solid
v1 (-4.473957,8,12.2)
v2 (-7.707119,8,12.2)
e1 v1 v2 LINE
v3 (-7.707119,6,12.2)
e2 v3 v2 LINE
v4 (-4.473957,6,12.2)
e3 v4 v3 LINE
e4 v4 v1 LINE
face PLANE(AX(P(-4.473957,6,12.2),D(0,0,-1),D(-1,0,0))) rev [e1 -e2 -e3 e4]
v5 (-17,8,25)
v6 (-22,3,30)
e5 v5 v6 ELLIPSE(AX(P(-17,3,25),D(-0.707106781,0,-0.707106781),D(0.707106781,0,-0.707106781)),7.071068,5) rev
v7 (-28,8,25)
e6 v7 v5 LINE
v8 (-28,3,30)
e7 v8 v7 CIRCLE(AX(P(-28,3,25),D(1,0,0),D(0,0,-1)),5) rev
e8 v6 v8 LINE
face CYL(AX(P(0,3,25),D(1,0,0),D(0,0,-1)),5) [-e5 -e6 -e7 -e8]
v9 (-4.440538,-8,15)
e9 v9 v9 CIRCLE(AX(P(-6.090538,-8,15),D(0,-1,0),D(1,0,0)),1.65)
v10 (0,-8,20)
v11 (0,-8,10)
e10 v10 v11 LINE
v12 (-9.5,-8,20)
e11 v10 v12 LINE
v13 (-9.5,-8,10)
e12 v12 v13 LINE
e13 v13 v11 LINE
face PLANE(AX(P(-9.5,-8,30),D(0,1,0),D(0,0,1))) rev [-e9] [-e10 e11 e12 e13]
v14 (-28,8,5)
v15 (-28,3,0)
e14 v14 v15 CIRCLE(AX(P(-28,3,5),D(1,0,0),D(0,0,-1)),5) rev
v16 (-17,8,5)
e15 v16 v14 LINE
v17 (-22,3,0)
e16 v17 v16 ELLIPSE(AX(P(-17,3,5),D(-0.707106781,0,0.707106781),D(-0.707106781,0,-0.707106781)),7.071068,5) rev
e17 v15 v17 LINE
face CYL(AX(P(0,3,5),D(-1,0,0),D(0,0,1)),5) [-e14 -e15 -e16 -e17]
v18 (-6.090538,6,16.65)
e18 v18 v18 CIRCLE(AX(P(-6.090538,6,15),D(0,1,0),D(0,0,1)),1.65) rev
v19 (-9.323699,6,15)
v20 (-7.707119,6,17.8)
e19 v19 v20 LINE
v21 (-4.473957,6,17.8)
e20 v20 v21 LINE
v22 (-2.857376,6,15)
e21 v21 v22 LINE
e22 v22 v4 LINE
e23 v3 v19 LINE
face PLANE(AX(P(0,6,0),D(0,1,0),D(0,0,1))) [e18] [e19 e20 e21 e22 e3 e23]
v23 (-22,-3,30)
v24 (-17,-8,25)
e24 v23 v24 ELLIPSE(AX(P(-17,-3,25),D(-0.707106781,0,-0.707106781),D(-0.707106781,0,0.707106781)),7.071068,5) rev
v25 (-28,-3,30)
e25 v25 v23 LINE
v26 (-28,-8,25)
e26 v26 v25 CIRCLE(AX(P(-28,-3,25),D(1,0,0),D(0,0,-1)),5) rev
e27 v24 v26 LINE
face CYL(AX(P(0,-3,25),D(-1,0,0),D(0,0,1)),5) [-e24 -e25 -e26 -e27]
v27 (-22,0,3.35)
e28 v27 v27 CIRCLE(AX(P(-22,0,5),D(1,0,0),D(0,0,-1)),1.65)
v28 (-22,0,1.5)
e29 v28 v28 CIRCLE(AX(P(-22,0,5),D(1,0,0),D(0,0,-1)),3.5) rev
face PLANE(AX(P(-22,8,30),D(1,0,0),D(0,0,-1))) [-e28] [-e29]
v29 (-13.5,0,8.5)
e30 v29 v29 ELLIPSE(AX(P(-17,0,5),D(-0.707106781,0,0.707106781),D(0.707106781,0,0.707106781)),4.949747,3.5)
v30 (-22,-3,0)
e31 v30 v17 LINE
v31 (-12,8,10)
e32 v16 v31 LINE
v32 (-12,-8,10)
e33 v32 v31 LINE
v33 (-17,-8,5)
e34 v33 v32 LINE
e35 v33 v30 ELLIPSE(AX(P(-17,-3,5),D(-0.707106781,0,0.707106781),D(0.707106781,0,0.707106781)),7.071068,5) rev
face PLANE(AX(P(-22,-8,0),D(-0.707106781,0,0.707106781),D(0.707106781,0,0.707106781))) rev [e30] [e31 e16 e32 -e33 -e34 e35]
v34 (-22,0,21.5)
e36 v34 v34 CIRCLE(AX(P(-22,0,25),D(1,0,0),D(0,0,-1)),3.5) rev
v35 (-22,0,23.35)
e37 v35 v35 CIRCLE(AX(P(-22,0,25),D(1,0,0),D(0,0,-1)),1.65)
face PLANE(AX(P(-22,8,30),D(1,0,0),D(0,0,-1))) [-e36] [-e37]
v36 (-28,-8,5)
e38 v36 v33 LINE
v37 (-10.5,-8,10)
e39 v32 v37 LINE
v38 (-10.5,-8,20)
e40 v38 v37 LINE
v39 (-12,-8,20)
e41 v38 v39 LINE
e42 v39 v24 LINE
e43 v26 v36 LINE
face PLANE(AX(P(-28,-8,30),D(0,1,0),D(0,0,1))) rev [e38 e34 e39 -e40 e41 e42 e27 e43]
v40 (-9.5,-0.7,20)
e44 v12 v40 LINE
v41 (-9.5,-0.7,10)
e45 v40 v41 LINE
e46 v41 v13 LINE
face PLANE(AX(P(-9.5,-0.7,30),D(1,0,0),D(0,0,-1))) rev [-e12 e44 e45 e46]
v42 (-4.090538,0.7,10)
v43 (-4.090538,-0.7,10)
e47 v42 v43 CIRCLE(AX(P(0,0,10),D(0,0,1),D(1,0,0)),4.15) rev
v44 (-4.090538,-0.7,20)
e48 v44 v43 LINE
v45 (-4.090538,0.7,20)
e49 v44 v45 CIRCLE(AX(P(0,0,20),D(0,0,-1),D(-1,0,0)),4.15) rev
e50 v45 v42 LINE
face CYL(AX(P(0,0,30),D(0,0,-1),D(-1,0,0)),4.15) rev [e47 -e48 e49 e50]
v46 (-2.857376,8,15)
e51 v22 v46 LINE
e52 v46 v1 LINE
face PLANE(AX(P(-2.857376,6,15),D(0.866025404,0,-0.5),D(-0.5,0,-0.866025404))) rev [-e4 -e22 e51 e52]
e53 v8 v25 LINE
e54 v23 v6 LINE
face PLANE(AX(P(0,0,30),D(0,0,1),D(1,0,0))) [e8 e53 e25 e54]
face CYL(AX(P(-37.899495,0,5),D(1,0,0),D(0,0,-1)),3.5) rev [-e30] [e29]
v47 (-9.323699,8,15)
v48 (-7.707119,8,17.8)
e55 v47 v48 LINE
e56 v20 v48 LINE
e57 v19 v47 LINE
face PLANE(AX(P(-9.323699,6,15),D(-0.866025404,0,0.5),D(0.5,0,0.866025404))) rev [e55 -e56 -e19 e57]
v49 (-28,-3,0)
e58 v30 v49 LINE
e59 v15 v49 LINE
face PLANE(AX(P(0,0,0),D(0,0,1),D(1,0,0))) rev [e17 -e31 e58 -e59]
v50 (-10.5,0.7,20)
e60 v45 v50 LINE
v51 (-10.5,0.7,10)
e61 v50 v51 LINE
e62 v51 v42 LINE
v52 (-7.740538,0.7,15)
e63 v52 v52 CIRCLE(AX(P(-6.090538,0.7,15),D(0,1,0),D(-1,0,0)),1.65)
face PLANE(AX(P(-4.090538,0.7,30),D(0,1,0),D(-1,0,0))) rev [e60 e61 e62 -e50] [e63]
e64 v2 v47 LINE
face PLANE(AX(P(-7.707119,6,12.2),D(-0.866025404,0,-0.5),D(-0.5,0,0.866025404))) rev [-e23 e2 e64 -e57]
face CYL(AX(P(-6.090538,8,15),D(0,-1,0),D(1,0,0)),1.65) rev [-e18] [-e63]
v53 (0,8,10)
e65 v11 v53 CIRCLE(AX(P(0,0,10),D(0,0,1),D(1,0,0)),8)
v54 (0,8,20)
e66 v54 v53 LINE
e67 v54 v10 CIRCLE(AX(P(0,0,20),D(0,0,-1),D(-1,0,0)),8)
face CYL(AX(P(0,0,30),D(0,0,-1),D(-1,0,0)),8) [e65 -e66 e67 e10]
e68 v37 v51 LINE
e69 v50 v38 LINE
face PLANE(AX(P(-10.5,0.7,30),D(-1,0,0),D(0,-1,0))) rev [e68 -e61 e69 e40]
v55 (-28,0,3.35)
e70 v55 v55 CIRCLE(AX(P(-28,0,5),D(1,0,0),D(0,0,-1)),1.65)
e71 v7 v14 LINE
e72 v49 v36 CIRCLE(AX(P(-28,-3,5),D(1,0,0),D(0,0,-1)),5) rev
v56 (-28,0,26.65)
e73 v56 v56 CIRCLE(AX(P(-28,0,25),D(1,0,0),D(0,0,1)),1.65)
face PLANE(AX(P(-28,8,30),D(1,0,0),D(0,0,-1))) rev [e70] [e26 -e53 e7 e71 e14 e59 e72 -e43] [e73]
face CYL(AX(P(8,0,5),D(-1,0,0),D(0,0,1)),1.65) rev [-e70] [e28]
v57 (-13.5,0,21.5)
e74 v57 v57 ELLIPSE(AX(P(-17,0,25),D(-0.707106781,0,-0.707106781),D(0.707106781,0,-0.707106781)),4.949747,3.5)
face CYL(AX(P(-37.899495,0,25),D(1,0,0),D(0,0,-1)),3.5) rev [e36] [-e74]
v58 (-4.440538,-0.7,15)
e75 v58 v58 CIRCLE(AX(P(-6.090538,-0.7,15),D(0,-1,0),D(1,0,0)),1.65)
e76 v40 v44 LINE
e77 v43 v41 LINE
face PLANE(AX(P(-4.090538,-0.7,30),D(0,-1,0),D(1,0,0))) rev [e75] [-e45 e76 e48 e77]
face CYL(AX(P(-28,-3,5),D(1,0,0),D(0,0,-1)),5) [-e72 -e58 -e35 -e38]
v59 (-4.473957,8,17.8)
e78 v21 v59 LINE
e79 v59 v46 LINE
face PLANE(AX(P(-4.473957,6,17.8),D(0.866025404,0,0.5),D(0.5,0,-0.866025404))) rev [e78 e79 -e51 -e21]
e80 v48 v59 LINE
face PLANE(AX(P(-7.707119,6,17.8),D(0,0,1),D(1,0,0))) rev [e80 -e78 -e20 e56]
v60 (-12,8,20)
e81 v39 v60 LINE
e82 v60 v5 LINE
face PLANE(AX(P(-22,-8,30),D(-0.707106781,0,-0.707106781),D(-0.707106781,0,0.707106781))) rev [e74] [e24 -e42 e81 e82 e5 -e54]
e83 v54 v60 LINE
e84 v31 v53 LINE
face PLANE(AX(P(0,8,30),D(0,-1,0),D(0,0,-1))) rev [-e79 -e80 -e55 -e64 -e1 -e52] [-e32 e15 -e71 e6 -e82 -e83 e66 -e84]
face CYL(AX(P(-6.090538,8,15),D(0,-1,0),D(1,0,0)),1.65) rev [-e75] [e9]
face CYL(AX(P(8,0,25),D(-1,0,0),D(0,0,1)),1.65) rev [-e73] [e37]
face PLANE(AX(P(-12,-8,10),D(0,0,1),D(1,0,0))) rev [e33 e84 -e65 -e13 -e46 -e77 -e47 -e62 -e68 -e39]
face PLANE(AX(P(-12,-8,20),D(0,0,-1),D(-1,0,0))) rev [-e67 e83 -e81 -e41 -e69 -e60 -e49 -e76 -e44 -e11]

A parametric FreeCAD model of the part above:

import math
import FreeCAD as App
import Part
import Sketcher
Q = App.Units.Quantity


def edges_at(feature, points):
    """Names of the edges that pass closest to the given points."""
    edges = feature.Shape.Edges
    near = lambda p: min(range(len(edges)), key=lambda i: edges[i].distToShape(Part.Vertex(*p))[0])
    return sorted({f"Edge{near(p) + 1}" for p in points})


def add_polygon(sketch, points):
    """Adds a closed chain of lines whose ends are joined by coincident constraints."""
    first, n = sketch.GeometryCount, len(points)
    for a, b in zip(points, points[1:] + points[:1]):
        sketch.addGeometry(Part.LineSegment(App.Vector(*a, 0), App.Vector(*b, 0)), False)
    for i in range(n):
        sketch.addConstraint(Sketcher.Constraint("Coincident", first + i, 2, first + (i + 1) % n, 1))

doc = App.newDocument("Part")
body = doc.addObject("PartDesign::Body", "Body")

# Sketch on XY plane
sketch1 = body.newObject("Sketcher::SketchObject", "Sketch")
sketch1.AttachmentSupport = (doc.getObject("XY_Plane"), [""])
sketch1.MapMode = "FlatFace"
sketch1.addGeometry([
    Part.LineSegment(App.Vector(0, 8, 0), App.Vector(-28, 8, 0)),  # 0
    Part.LineSegment(App.Vector(-28, 8, 0), App.Vector(-28, -8, 0)),  # 1
    Part.LineSegment(App.Vector(-28, -8, 0), App.Vector(-10.5, -8, 0)),  # 2
    Part.LineSegment(App.Vector(-10.5, -8, 0), App.Vector(-10.5, 0.7, 0)),  # 3
    Part.LineSegment(App.Vector(-10.5, 0.7, 0), App.Vector(-4.090538, 0.7, 0)),  # 4
    Part.ArcOfCircle(Part.Circle(App.Vector(0, 0, 0), App.Vector(0, 0, 1), 4.15), math.radians(-170.289228), math.radians(170.289228)),  # 5
    Part.LineSegment(App.Vector(-4.090538, -0.7, 0), App.Vector(-9.5, -0.7, 0)),  # 6
    Part.LineSegment(App.Vector(-9.5, -0.7, 0), App.Vector(-9.5, -8, 0)),  # 7
    Part.LineSegment(App.Vector(-9.5, -8, 0), App.Vector(0, -8, 0)),  # 8
    Part.ArcOfCircle(Part.Circle(App.Vector(0, 0, 0), App.Vector(0, 0, 1), 8), math.radians(-90), math.radians(90)),  # 9
], False)
sketch1.addConstraint([
    Sketcher.Constraint("Coincident", 0, 2, 1, 1),
    Sketcher.Constraint("Coincident", 1, 2, 2, 1),
    Sketcher.Constraint("Coincident", 2, 2, 3, 1),
    Sketcher.Constraint("Coincident", 3, 2, 4, 1),
    Sketcher.Constraint("Coincident", 4, 2, 5, 2),
    Sketcher.Constraint("Coincident", 5, 1, 6, 1),
    Sketcher.Constraint("Coincident", 6, 2, 7, 1),
    Sketcher.Constraint("Coincident", 7, 2, 8, 1),
    Sketcher.Constraint("Tangent", 8, 2, 9, 1),
    Sketcher.Constraint("Tangent", 9, 2, 0, 1),
    Sketcher.Constraint("Horizontal", 0),
    Sketcher.Constraint("Vertical", 1),
    Sketcher.Constraint("Horizontal", 2),
    Sketcher.Constraint("Vertical", 3),
    Sketcher.Constraint("Horizontal", 4),
    Sketcher.Constraint("Horizontal", 6),
    Sketcher.Constraint("Vertical", 7),
    Sketcher.Constraint("Horizontal", 8),
    Sketcher.Constraint("Coincident", 5, 3, -1, 1),
    Sketcher.Constraint("Coincident", 9, 3, -1, 1),
    Sketcher.Constraint("Horizontal", 2, 2, 7, 2),
    Sketcher.Constraint("Vertical", 4, 2, 5, 1),
    Sketcher.Constraint("Radius", 9, Q("8 mm")),
    Sketcher.Constraint("DistanceX", 0, 2, 0, 1, Q("28 mm")),
    Sketcher.Constraint("Radius", 5, Q("4.15 mm")),
    Sketcher.Constraint("DistanceX", 2, 1, 2, 2, Q("17.5 mm")),
    Sketcher.Constraint("DistanceX", 8, 1, 8, 2, Q("9.5 mm")),
    Sketcher.Constraint("DistanceY", 3, 1, 3, 2, Q("8.7 mm")),
])
pad1 = body.newObject("PartDesign::Pad", "Pad")
pad1.Profile = sketch1
pad1.Length = 30

# Sketch on XZ plane
sketch2 = body.newObject("Sketcher::SketchObject", "Sketch001")
sketch2.AttachmentSupport = (doc.getObject("XZ_Plane"), [""])
sketch2.MapMode = "FlatFace"
sketch2.AttachmentOffset = App.Placement(App.Vector(0, 0, -8), App.Rotation())
add_polygon(sketch2, [(-12, 20), (-22, 30), (8, 30), (8, 20)])  # lines 0-3
add_polygon(sketch2, [(8, 0), (-22, 0), (-12, 10), (8, 10)])  # lines 4-7
sketch2.addConstraint([
    Sketcher.Constraint("Horizontal", 1),
    Sketcher.Constraint("Vertical", 2),
    Sketcher.Constraint("Horizontal", 3),
    Sketcher.Constraint("Horizontal", 4),
    Sketcher.Constraint("Horizontal", 6),
    Sketcher.Constraint("Vertical", 7),
    Sketcher.Constraint("PointOnObject", 4, 2, -1),
    Sketcher.Constraint("Perpendicular", 0, 5),
    Sketcher.Constraint("Vertical", 0, 2, 4, 2),
    Sketcher.Constraint("Vertical", 3, 2, 5, 2),
    Sketcher.Constraint("Vertical", 2, 2, 6, 2),
    Sketcher.Constraint("Equal", 2, 7),
    Sketcher.Constraint("DistanceX", 1, 1, 1, 2, Q("30 mm")),
    Sketcher.Constraint("DistanceX", 3, 2, 3, 1, Q("20 mm")),
    Sketcher.Constraint("DistanceX", 0, 2, -1, 1, Q("22 mm")),
    Sketcher.Constraint("DistanceY", -1, 1, 0, 2, Q("30 mm")),
])
pocket1 = body.newObject("PartDesign::Pocket", "Pocket")
pocket1.Profile = sketch2
pocket1.Type = "ThroughAll"
pocket1.Reversed = True

# Sketch on XZ plane
sketch3 = body.newObject("Sketcher::SketchObject", "Sketch002")
sketch3.AttachmentSupport = (doc.getObject("XZ_Plane"), [""])
sketch3.MapMode = "FlatFace"
sketch3.AttachmentOffset = App.Placement(App.Vector(0, 0, -0.7), App.Rotation())
sketch3.addGeometry(Part.Circle(App.Vector(-6.090538, 15, 0), App.Vector(0, 0, 1), 1.65), False)
sketch3.addConstraint([
    Sketcher.Constraint("Diameter", 0, Q("3.3 mm")),
    Sketcher.Constraint("DistanceY", -1, 1, 0, 3, Q("15 mm")),
    Sketcher.Constraint("DistanceX", 0, 3, -1, 1, Q("6.090538 mm")),
])
pocket2 = body.newObject("PartDesign::Pocket", "Pocket001")
pocket2.Profile = sketch3
pocket2.Type = "ThroughAll"
pocket2.Midplane = True

# Sketch on XZ plane
sketch4 = body.newObject("Sketcher::SketchObject", "Sketch003")
sketch4.AttachmentSupport = (doc.getObject("XZ_Plane"), [""])
sketch4.MapMode = "FlatFace"
sketch4.AttachmentOffset = App.Placement(App.Vector(0, 0, -8), App.Rotation())
add_polygon(sketch4, [(-2.857376, 15), (-4.473957, 12.2), (-7.707119, 12.2), (-9.323699, 15), (-7.707119, 17.8), (-4.473957, 17.8)])  # lines 0-5
sketch4.addConstraint([
    Sketcher.Constraint("Horizontal", 1),
    Sketcher.Constraint("Horizontal", 4),
    Sketcher.Constraint("Parallel", 0, 3),
    Sketcher.Constraint("Parallel", 2, 5),
    Sketcher.Constraint("Horizontal", 2, 2, 5, 2),
    Sketcher.Constraint("Vertical", 1, 2, 3, 2),
    Sketcher.Constraint("Vertical", 0, 2, 4, 2),
    Sketcher.Constraint("Angle", 0, Q("-120 deg")),
    Sketcher.Constraint("DistanceY", -1, 1, 2, 2, Q("15 mm")),
    Sketcher.Constraint("DistanceY", -1, 1, 0, 2, Q("12.2 mm")),
    Sketcher.Constraint("DistanceX", 1, 2, 1, 1, Q("3.233162 mm")),
    Sketcher.Constraint("DistanceX", 2, 2, -1, 1, Q("9.323699 mm")),
])
pocket3 = body.newObject("PartDesign::Pocket", "Pocket002")
pocket3.Profile = sketch4
pocket3.Length = 2
pocket3.Reversed = True

# Sketch on YZ plane
sketch5 = body.newObject("Sketcher::SketchObject", "Sketch004")
sketch5.AttachmentSupport = (doc.getObject("YZ_Plane"), [""])
sketch5.MapMode = "FlatFace"
sketch5.AttachmentOffset = App.Placement(App.Vector(0, 0, -28), App.Rotation())
sketch5.addGeometry([
    Part.Circle(App.Vector(0, 5, 0), App.Vector(0, 0, 1), 1.65),
    Part.Circle(App.Vector(0, 25, 0), App.Vector(0, 0, 1), 1.65),
], False)
sketch5.addConstraint([
    Sketcher.Constraint("Equal", 0, 1),
    Sketcher.Constraint("PointOnObject", 0, 3, -2),
    Sketcher.Constraint("PointOnObject", 1, 3, -2),
    Sketcher.Constraint("Diameter", 0, Q("3.3 mm")),
    Sketcher.Constraint("DistanceY", -1, 1, 0, 3, Q("5 mm")),
    Sketcher.Constraint("DistanceY", -1, 1, 1, 3, Q("25 mm")),
])
pocket4 = body.newObject("PartDesign::Pocket", "Pocket003")
pocket4.Profile = sketch5
pocket4.Type = "ThroughAll"
pocket4.Reversed = True
doc.recompute()

fillet = body.newObject("PartDesign::Fillet", "Fillet")
fillet.Base = (pocket4, edges_at(pocket4, [
    (-25, -8, 0),
    (-25, 8, 30),
    (-25, -8, 30),
    (-25, 8, 0),
]))
fillet.Radius = 5

# Sketch on YZ plane
sketch6 = body.newObject("Sketcher::SketchObject", "Sketch005")
sketch6.AttachmentSupport = (doc.getObject("YZ_Plane"), [""])
sketch6.MapMode = "FlatFace"
sketch6.addGeometry([
    Part.Circle(App.Vector(0, 25, 0), App.Vector(0, 0, 1), 3.5),
    Part.Circle(App.Vector(0, 5, 0), App.Vector(0, 0, 1), 3.5),
], False)
sketch6.addConstraint([
    Sketcher.Constraint("Equal", 0, 1),
    Sketcher.Constraint("PointOnObject", 0, 3, -2),
    Sketcher.Constraint("PointOnObject", 1, 3, -2),
    Sketcher.Constraint("Diameter", 0, Q("7 mm")),
    Sketcher.Constraint("DistanceY", -1, 1, 0, 3, Q("25 mm")),
    Sketcher.Constraint("DistanceY", -1, 1, 1, 3, Q("5 mm")),
])
pocket5 = body.newObject("PartDesign::Pocket", "Pocket004")
pocket5.Profile = sketch6
pocket5.Length = 22

doc.recompute()
